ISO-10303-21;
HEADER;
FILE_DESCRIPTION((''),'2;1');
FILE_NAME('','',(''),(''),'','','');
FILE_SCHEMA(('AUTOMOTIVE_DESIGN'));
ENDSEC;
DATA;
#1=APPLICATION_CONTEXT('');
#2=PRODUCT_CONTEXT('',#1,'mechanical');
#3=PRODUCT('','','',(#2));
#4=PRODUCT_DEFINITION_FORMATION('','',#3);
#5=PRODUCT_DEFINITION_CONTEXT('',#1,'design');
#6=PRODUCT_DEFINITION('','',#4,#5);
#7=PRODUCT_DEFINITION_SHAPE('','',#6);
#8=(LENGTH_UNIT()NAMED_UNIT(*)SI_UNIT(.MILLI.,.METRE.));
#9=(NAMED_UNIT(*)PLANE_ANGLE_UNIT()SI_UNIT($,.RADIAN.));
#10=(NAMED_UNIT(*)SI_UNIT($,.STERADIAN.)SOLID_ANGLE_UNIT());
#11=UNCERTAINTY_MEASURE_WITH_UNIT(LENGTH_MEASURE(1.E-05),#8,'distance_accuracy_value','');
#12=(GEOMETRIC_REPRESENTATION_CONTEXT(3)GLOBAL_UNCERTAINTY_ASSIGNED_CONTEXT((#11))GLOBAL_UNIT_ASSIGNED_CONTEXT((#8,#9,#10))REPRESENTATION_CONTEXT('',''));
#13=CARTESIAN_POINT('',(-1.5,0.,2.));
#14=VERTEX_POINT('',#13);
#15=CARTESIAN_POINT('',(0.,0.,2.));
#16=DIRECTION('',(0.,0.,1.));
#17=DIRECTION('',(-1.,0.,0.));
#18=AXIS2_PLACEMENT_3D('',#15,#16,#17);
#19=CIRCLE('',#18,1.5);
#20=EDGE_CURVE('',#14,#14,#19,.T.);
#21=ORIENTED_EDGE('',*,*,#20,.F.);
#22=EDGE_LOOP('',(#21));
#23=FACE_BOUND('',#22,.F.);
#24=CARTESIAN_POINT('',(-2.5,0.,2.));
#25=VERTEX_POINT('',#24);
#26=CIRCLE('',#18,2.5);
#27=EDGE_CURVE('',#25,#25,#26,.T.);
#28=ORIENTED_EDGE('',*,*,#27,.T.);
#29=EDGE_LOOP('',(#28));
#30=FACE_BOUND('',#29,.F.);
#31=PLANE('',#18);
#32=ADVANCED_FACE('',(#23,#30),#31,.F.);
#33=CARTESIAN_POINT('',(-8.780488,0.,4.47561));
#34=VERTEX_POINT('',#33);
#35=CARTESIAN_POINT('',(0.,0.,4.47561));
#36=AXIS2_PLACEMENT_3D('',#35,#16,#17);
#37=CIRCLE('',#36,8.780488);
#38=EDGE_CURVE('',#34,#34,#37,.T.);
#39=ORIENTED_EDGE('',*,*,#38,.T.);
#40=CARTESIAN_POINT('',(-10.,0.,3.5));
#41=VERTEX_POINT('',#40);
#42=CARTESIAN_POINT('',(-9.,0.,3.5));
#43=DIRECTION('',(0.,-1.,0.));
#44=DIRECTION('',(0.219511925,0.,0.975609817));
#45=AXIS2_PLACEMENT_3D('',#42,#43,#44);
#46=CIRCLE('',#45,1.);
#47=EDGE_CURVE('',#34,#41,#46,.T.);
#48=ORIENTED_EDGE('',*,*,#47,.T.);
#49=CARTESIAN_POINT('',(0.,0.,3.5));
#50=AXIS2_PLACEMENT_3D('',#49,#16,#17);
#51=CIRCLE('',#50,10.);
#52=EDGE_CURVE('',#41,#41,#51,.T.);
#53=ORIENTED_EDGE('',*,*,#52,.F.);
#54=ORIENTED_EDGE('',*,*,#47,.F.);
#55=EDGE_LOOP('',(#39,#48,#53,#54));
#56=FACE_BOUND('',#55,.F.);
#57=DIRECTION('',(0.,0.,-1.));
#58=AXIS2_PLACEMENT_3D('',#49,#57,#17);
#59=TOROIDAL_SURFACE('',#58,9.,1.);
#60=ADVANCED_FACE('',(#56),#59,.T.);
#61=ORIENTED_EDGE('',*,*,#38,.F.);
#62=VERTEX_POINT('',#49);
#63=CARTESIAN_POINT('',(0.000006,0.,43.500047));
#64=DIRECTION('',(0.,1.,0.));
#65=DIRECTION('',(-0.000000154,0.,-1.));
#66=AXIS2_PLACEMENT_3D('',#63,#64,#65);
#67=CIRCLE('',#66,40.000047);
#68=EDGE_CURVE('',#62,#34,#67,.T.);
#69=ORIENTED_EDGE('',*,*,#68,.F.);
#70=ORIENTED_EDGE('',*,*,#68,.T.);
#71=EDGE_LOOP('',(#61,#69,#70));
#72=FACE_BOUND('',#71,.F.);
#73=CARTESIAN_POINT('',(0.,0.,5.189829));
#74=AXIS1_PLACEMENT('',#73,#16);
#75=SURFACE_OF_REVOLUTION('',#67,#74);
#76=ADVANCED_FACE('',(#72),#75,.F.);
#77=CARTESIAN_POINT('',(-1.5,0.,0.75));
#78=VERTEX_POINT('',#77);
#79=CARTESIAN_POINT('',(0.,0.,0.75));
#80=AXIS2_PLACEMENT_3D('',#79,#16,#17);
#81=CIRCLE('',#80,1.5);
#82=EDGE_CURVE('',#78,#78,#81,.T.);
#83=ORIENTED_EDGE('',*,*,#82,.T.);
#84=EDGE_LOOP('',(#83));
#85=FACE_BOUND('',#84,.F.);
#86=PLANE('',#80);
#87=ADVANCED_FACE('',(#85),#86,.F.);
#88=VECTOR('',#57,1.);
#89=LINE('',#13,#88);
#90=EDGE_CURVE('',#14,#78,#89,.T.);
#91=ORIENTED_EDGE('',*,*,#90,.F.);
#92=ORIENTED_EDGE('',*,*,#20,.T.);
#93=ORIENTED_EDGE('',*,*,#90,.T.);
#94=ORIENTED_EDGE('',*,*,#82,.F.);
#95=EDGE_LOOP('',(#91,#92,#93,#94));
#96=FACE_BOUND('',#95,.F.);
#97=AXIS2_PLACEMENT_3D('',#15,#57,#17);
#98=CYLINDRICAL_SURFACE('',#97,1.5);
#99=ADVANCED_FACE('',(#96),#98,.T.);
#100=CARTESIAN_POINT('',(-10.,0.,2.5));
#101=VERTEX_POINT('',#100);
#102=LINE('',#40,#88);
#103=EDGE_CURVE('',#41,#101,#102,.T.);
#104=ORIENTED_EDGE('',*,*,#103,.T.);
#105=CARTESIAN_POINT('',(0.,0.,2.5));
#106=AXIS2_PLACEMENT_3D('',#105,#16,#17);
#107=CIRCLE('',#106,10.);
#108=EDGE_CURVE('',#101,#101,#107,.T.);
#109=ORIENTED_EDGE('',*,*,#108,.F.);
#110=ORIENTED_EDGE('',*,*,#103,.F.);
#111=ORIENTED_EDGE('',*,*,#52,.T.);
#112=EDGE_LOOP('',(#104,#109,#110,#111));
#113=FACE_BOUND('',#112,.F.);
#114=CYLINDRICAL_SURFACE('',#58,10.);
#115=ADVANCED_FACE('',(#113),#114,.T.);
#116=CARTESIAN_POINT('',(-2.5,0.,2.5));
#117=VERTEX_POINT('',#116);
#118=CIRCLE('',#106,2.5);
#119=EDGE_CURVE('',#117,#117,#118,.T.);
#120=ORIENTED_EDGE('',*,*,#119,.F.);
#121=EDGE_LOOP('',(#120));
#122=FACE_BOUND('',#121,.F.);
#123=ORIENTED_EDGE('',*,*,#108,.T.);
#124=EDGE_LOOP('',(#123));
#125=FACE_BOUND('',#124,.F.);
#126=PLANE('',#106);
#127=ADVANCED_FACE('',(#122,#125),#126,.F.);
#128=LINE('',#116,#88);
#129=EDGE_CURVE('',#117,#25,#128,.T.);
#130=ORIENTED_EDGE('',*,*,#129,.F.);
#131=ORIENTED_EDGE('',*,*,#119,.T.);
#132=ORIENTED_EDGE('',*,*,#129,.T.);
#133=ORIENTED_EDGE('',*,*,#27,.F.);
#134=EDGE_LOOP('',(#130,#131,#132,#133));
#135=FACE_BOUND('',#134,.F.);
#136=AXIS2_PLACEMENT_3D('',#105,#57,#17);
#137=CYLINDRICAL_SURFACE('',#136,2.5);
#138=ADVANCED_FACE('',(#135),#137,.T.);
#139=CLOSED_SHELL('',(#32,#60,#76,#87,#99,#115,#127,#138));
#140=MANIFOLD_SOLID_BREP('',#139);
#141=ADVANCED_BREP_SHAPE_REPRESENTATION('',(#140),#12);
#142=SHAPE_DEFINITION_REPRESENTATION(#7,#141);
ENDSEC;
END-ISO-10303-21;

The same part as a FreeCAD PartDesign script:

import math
import FreeCAD as App
import Part
import Sketcher
Q = App.Units.Quantity

doc = App.newDocument("Part")
params = doc.addObject("Spreadsheet::Sheet", "Params")
for row, (alias, value) in enumerate([
    ("sketch1_radius", "1 mm"),
    ("sketch1_width", "1 mm"),
    ("sketch1_width2", "7.5 mm"),
    ("sketch1_width3", "1.5 mm"),
    ("sketch1_height", "0.5 mm"),
    ("revolution_angle", "360 deg"),
], start=1):
    params.set(f"A{row}", alias)
    params.set(f"B{row}", "=" + value)
    params.setAlias(f"B{row}", alias)

body = doc.addObject("PartDesign::Body", "Body")

sketch1 = body.newObject("Sketcher::SketchObject", "Sketch")
sketch1.AttachmentSupport = (doc.getObject("XZ_Plane"), [""])
sketch1.MapMode = "FlatFace"
sketch1.addGeometry(Part.LineSegment(App.Vector(-10, 2.5, 0), App.Vector(-2.5, 2.5, 0)), False)
sketch1.addGeometry(Part.LineSegment(App.Vector(-2.5, 2.5, 0), App.Vector(-2.5, 2, 0)), False)
sketch1.addGeometry(Part.LineSegment(App.Vector(-2.5, 2, 0), App.Vector(-1.5, 2, 0)), False)
sketch1.addGeometry(Part.LineSegment(App.Vector(-1.5, 2, 0), App.Vector(-1.5, 0.8, 0)), False)
sketch1.addGeometry(Part.LineSegment(App.Vector(-1.5, 0.8, 0), App.Vector(0, 0.8, 0)), False)
sketch1.addGeometry(Part.LineSegment(App.Vector(0, 0.8, 0), App.Vector(0, 3.5, 0)), False)
sketch1.addGeometry(Part.ArcOfCircle(Part.Circle(App.Vector(0, 43.5, 0), App.Vector(0, 0, 1), 40), math.radians(-102.68), math.radians(-90)), False)
sketch1.addGeometry(Part.ArcOfCircle(Part.Circle(App.Vector(-9, 3.5, 0), App.Vector(0, 0, 1), 1), math.radians(77), math.radians(180)), False)
sketch1.addGeometry(Part.LineSegment(App.Vector(-10, 3.5, 0), App.Vector(-10, 2.5, 0)), False)
sketch1.addConstraint(Sketcher.Constraint("Coincident", 0, 2, 1, 1))
sketch1.addConstraint(Sketcher.Constraint("Coincident", 1, 2, 2, 1))
sketch1.addConstraint(Sketcher.Constraint("Coincident", 2, 2, 3, 1))
sketch1.addConstraint(Sketcher.Constraint("Coincident", 3, 2, 4, 1))
sketch1.addConstraint(Sketcher.Constraint("Coincident", 4, 2, 5, 1))
sketch1.addConstraint(Sketcher.Constraint("Coincident", 5, 2, 6, 2))
sketch1.addConstraint(Sketcher.Constraint("Tangent", 6, 1, 7, 1))
sketch1.addConstraint(Sketcher.Constraint("Tangent", 7, 2, 8, 1))
sketch1.addConstraint(Sketcher.Constraint("Coincident", 8, 2, 0, 1))
sketch1.addConstraint(Sketcher.Constraint("Horizontal", 0))
sketch1.addConstraint(Sketcher.Constraint("Vertical", 1))
sketch1.addConstraint(Sketcher.Constraint("Horizontal", 2))
sketch1.addConstraint(Sketcher.Constraint("Vertical", 3))
sketch1.addConstraint(Sketcher.Constraint("Horizontal", 4))
sketch1.addConstraint(Sketcher.Constraint("Vertical", 5))
sketch1.addConstraint(Sketcher.Constraint("Vertical", 8))
sketch1.addConstraint(Sketcher.Constraint("PointOnObject", 4, 2, -2))
sketch1.addConstraint(Sketcher.Constraint("Horizontal", 7, 3, 5, 2))
sketch1.addConstraint(Sketcher.Constraint("Equal", 2, 8))
sketch1.addConstraint(Sketcher.Constraint("Radius", 7, Q("1 mm")))
sketch1.addConstraint(Sketcher.Constraint("DistanceX", 2, 1, 2, 2, Q("1 mm")))
sketch1.addConstraint(Sketcher.Constraint("DistanceX", 0, 1, 0, 2, Q("7.5 mm")))
sketch1.addConstraint(Sketcher.Constraint("DistanceX", 4, 1, 4, 2, Q("1.5 mm")))
sketch1.addConstraint(Sketcher.Constraint("DistanceY", 1, 2, 1, 1, Q("0.5 mm")))
sketch1.addConstraint(Sketcher.Constraint("DistanceY", -1, 1, 1, 2, Q("2 mm")))
sketch1.addConstraint(Sketcher.Constraint("DistanceY", 3, 2, 3, 1, Q("1.25 mm")))
sketch1.addConstraint(Sketcher.Constraint("Radius", 6, Q("40.000047 mm")))
sketch1.setExpression("Constraints[19]", "Params.sketch1_radius")
sketch1.setExpression("Constraints[20]", "Params.sketch1_width")
sketch1.setExpression("Constraints[21]", "Params.sketch1_width2")
sketch1.setExpression("Constraints[22]", "Params.sketch1_width3")
sketch1.setExpression("Constraints[23]", "Params.sketch1_height")
revolution = body.newObject("PartDesign::Revolution", "Revolution")
revolution.Profile = sketch1
revolution.ReferenceAxis = (sketch1, ["V_Axis"])
revolution.setExpression("Angle", "Params.revolution_angle")

doc.recompute()
